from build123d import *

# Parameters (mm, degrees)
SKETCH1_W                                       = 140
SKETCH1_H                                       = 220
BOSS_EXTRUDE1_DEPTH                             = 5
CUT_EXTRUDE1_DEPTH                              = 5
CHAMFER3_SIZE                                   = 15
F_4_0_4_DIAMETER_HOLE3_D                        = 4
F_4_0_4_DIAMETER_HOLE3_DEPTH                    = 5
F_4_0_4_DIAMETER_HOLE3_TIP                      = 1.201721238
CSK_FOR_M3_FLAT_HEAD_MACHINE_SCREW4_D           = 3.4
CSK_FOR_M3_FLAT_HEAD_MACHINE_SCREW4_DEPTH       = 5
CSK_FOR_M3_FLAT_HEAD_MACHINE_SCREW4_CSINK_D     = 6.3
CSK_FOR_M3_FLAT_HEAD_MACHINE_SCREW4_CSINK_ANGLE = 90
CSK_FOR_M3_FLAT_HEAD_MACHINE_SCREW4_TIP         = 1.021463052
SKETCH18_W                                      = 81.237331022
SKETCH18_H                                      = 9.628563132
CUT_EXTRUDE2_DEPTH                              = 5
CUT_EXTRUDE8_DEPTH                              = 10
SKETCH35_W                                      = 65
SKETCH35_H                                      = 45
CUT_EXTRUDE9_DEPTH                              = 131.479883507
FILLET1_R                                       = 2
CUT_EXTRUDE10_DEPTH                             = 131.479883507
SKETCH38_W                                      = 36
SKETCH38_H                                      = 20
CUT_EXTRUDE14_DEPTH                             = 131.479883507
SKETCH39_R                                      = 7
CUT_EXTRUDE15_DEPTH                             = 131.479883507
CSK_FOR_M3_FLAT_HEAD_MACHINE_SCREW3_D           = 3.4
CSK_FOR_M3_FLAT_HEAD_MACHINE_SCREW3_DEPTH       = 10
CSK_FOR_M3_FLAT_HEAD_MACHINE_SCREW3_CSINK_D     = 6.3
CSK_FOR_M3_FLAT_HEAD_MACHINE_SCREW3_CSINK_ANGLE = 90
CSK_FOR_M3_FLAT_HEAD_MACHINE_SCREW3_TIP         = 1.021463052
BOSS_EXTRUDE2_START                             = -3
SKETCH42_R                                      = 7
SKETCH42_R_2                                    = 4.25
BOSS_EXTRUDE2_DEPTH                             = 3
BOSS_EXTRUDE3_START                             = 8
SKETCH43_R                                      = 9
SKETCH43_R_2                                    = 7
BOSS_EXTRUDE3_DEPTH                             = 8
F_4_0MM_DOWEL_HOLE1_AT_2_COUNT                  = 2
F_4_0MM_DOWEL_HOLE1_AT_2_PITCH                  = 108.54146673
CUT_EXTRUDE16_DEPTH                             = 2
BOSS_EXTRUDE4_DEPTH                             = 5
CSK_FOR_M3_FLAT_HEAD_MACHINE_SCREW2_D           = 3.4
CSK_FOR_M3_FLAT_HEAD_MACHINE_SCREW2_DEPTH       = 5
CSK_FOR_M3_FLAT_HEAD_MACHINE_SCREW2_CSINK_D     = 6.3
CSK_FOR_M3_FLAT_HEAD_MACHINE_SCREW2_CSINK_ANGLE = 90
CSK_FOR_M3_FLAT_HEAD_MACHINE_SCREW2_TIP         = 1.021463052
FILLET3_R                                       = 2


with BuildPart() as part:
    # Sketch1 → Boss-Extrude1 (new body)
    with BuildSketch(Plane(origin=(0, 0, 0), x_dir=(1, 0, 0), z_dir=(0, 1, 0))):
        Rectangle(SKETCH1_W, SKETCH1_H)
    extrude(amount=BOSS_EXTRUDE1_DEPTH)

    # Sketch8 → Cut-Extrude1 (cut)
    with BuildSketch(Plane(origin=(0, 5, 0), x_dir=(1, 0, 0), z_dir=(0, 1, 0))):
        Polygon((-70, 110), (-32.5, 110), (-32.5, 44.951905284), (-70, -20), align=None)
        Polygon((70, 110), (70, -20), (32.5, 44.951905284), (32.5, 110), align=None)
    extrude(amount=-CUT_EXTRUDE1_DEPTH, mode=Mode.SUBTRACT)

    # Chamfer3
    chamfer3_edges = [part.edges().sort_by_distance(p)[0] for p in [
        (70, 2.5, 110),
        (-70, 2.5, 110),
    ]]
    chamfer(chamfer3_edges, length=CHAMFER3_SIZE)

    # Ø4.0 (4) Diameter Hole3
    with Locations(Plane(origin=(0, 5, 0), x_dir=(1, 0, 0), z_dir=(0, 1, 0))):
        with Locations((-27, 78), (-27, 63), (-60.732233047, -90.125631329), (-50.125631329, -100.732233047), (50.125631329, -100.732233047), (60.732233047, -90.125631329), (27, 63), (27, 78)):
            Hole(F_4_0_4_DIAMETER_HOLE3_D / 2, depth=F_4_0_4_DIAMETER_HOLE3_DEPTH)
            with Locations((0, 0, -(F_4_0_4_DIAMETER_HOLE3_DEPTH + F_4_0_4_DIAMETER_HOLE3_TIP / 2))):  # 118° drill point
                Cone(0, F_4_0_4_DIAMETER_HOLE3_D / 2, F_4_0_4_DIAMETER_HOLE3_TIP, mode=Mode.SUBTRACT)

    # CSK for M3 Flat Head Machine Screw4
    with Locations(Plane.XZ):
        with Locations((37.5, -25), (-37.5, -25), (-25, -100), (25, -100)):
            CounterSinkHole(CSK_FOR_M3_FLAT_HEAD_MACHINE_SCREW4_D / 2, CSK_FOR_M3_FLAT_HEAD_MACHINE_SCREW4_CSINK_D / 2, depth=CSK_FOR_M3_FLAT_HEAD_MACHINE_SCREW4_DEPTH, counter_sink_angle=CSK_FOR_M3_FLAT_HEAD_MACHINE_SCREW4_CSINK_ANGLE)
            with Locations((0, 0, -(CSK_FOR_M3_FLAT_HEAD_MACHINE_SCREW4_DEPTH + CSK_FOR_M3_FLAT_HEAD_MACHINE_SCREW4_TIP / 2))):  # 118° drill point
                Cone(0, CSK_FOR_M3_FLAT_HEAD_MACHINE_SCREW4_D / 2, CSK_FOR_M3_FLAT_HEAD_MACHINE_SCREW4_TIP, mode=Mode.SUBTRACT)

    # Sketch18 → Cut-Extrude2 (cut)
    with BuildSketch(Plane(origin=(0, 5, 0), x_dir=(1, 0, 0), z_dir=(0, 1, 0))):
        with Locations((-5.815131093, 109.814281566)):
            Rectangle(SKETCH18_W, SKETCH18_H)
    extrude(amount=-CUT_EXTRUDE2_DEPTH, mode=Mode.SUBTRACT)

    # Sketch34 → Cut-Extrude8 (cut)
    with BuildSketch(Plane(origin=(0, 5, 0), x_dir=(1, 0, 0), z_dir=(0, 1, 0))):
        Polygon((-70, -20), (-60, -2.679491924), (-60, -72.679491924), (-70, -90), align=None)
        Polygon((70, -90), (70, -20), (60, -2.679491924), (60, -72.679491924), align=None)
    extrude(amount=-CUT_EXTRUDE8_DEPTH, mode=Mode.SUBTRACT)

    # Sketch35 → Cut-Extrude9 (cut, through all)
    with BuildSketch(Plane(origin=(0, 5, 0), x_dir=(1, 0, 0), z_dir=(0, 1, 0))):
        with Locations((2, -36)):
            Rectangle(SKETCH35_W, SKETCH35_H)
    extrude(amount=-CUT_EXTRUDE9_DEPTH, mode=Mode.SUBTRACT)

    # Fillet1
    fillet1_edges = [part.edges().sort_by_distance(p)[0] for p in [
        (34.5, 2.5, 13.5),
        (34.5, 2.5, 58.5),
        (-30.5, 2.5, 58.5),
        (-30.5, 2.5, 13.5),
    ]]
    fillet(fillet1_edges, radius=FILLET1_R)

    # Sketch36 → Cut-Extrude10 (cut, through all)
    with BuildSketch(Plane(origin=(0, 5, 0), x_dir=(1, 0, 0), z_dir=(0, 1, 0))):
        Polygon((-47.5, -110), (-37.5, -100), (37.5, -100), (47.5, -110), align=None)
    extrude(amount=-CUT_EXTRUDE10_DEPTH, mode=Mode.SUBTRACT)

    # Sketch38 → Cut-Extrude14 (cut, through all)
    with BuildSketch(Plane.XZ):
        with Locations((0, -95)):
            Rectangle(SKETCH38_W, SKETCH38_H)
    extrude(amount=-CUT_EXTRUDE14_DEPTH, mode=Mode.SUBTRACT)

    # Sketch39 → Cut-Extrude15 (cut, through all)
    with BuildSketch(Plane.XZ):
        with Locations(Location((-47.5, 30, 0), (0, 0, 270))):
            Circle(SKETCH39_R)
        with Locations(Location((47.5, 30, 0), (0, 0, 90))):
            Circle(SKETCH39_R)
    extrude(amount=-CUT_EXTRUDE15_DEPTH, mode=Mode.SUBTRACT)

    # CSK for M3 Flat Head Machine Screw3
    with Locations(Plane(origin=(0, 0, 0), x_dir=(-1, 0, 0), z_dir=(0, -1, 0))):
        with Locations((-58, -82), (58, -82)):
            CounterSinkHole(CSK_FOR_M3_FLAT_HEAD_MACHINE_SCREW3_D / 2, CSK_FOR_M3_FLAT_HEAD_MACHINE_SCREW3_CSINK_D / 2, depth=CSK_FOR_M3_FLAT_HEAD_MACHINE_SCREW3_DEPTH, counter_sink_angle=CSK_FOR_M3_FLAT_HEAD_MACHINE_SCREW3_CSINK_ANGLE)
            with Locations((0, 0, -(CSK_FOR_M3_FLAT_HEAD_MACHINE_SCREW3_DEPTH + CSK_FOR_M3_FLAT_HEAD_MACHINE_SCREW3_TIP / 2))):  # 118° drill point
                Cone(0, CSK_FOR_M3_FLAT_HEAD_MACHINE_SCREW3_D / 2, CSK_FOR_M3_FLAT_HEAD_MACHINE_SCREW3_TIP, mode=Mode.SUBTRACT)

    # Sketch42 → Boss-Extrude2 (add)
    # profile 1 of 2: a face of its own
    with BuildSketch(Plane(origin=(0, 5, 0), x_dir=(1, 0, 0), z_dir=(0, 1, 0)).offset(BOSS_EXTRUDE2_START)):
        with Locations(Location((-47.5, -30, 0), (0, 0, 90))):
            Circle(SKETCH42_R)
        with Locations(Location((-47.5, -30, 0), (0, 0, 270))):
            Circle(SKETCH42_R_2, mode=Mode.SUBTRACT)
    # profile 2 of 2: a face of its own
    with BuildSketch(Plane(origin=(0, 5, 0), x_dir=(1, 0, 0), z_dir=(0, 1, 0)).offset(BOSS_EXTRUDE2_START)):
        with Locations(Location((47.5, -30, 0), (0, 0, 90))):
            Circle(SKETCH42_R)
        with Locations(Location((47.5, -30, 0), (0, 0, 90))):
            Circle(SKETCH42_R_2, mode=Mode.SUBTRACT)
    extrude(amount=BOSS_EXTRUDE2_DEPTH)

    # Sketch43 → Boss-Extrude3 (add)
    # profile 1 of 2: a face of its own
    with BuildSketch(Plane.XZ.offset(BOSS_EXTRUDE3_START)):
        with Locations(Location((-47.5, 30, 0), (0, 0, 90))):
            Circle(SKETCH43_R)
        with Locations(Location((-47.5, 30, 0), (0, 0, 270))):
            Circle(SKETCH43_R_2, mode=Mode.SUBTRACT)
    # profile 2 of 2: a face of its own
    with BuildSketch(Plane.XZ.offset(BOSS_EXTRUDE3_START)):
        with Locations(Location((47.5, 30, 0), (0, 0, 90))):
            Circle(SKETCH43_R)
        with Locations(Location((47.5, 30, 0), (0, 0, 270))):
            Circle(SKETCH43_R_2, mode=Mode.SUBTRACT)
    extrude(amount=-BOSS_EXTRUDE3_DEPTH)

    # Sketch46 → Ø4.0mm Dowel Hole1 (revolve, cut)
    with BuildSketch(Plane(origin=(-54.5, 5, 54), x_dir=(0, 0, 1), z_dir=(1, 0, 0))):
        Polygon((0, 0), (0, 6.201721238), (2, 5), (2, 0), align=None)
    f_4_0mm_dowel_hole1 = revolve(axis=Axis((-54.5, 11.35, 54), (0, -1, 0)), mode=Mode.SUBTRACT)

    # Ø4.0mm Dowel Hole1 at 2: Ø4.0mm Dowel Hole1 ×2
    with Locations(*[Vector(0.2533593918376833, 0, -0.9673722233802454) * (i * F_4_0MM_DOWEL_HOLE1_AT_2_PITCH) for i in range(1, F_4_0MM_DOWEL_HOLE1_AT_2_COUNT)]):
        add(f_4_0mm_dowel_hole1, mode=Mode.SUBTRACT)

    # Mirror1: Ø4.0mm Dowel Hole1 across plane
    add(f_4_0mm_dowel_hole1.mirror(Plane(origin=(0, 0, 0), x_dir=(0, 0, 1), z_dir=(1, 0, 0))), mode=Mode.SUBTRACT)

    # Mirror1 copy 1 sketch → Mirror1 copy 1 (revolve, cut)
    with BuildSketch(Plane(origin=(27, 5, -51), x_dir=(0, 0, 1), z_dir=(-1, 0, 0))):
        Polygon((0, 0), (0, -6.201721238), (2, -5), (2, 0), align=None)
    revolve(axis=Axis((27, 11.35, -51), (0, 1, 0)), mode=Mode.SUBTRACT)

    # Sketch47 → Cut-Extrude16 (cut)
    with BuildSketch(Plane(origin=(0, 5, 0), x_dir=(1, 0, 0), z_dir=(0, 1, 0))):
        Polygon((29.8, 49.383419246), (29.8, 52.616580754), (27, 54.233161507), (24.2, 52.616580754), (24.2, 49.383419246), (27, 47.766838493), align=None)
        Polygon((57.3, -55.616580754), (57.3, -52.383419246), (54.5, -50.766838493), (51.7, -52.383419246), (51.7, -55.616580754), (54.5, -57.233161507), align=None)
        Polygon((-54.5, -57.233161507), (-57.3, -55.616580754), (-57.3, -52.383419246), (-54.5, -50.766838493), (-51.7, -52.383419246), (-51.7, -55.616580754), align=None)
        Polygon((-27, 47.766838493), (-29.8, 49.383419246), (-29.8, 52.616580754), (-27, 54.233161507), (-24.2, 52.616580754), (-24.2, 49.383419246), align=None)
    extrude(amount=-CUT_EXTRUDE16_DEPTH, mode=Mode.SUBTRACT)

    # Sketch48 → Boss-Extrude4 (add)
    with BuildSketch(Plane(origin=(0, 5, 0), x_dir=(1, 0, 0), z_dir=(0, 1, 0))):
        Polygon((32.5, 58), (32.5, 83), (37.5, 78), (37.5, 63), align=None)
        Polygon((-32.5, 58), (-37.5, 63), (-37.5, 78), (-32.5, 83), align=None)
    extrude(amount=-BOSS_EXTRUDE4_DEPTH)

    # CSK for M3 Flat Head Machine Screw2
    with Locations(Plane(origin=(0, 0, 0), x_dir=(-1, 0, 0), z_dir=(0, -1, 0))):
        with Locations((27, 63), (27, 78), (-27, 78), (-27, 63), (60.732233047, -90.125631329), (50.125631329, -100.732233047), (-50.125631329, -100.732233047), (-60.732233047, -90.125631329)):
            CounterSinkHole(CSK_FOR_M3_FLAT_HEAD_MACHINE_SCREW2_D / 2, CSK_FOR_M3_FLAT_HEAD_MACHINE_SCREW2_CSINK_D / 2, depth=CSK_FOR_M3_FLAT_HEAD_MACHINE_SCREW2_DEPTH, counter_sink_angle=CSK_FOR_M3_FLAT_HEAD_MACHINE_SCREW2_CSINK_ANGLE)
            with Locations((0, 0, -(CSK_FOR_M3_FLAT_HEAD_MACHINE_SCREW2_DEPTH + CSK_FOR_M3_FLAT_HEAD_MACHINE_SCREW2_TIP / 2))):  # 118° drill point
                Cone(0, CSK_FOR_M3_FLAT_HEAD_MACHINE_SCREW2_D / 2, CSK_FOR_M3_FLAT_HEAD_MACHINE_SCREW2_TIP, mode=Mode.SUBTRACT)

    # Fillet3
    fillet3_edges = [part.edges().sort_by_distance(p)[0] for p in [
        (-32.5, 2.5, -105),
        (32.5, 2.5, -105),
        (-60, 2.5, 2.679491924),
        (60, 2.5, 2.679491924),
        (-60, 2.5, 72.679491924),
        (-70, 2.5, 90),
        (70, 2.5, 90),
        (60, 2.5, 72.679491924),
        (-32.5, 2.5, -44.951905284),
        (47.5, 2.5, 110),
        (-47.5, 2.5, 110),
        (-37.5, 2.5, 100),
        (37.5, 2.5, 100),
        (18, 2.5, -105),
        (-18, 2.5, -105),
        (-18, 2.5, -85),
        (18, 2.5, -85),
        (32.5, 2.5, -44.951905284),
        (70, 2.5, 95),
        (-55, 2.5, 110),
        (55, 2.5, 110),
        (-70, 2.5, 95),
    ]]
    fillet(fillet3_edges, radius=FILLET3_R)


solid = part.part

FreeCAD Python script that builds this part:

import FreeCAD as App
import Part
import Sketcher
from FreeCAD import Vector
Q = App.Units.Quantity


def edges_at(feature, points):
    """Names of the edges that pass closest to the given points."""
    edges = feature.Shape.Edges
    near = lambda p: min(range(len(edges)), key=lambda i: edges[i].distToShape(Part.Vertex(*p))[0])
    return sorted({f"Edge{near(p) + 1}" for p in points})


def add_polygon(sketch, points):
    """Adds a closed chain of lines whose ends are joined by coincident constraints."""
    first, n = sketch.GeometryCount, len(points)
    for a, b in zip(points, points[1:] + points[:1]):
        sketch.addGeometry(Part.LineSegment(App.Vector(*a, 0), App.Vector(*b, 0)), False)
    for i in range(n):
        sketch.addConstraint(Sketcher.Constraint("Coincident", first + i, 2, first + (i + 1) % n, 1))

doc = App.newDocument("Part")
body = doc.addObject("PartDesign::Body", "Body")

sketch1 = body.newObject("Sketcher::SketchObject", "Sketch")
sketch1.AttachmentSupport = (doc.getObject("XZ_Plane"), [""])
sketch1.MapMode = "FlatFace"
add_polygon(sketch1, [(-70, -110), (-70, 110), (70, 110), (70, -110)])
sketch1.addConstraint([
    Sketcher.Constraint("Vertical", 0),
    Sketcher.Constraint("Horizontal", 1),
    Sketcher.Constraint("Vertical", 2),
    Sketcher.Constraint("Horizontal", 3),
    Sketcher.Constraint("Symmetric", 0, 2, 2, 2, -1, 1),
    Sketcher.Constraint("DistanceX", 1, 1, 1, 2, Q("140 mm")),
    Sketcher.Constraint("DistanceY", 0, 1, 0, 2, Q("220 mm")),
])
pad1 = body.newObject("PartDesign::Pad", "Pad")
pad1.Profile = sketch1
pad1.Length = 5
pad1.Reversed = True

sketch2 = body.newObject("Sketcher::SketchObject", "Sketch001")
sketch2.AttachmentSupport = (doc.getObject("XZ_Plane"), [""])
sketch2.MapMode = "FlatFace"
sketch2.AttachmentOffset = App.Placement(Vector(0, 0, -5), App.Rotation())
add_polygon(sketch2, [(-32, -110), (-70, -110), (-70, 20), (-32, -45)])
add_polygon(sketch2, [(70, 20), (70, -110), (32, -110), (32, -45)])
sketch2.addConstraint([
    Sketcher.Constraint("Horizontal", 0),
    Sketcher.Constraint("Vertical", 1),
    Sketcher.Constraint("Vertical", 3),
    Sketcher.Constraint("Vertical", 4),
    Sketcher.Constraint("Horizontal", 5),
    Sketcher.Constraint("Vertical", 6),
    Sketcher.Constraint("Symmetric", 0, 2, 4, 2, -2),
    Sketcher.Constraint("Symmetric", 2, 2, 6, 2, -2),
    Sketcher.Constraint("Horizontal", 1, 2, 7, 2),
    Sketcher.Constraint("DistanceY", 1, 1, 1, 2, Q("130 mm")),
    Sketcher.Constraint("Angle", 2, Q("-60 deg")),
    Sketcher.Constraint("Distance", 2, Q("75 mm")),
    Sketcher.Constraint("DistanceX", 0, 2, -1, 1, Q("70 mm")),
    Sketcher.Constraint("DistanceY", 0, 2, -1, 1, Q("110 mm")),
])
pocket1 = body.newObject("PartDesign::Pocket", "Pocket")
pocket1.Profile = sketch2
pocket1.Length = 5
pocket1.Reversed = True
doc.recompute()

chamfer = body.newObject("PartDesign::Chamfer", "Chamfer")
chamfer.Base = (pocket1, edges_at(pocket1, [(70, 2.5, 110), (-70, 2.5, 110)]))
chamfer.Size = 15

sketch3 = body.newObject("Sketcher::SketchObject", "Sketch002")
sketch3.AttachmentSupport = (doc.getObject("XZ_Plane"), [""])
sketch3.MapMode = "FlatFace"
sketch3.AttachmentOffset = App.Placement(Vector(0, 0, -5), App.Rotation())
sketch3.addGeometry([
    Part.Circle(Vector(-27, -78, 0), Vector(0, 0, 1), 2),
    Part.Circle(Vector(-27, -63, 0), Vector(0, 0, 1), 2),
    Part.Circle(Vector(-60.7, 90.1, 0), Vector(0, 0, 1), 2),
    Part.Circle(Vector(-50.1, 100.7, 0), Vector(0, 0, 1), 2),
    Part.Circle(Vector(50.1, 100.7, 0), Vector(0, 0, 1), 2),
    Part.Circle(Vector(60.7, 90.1, 0), Vector(0, 0, 1), 2),
    Part.Circle(Vector(27, -63, 0), Vector(0, 0, 1), 2),
    Part.Circle(Vector(27, -78, 0), Vector(0, 0, 1), 2),
], False)
sketch3.addConstraint([
    Sketcher.Constraint("Equal", 0, 1),
    Sketcher.Constraint("Equal", 1, 2),
    Sketcher.Constraint("Equal", 2, 3),
    Sketcher.Constraint("Equal", 3, 4),
    Sketcher.Constraint("Equal", 4, 5),
    Sketcher.Constraint("Equal", 5, 6),
    Sketcher.Constraint("Equal", 6, 7),
    Sketcher.Constraint("Symmetric", 3, 3, 4, 3, -2),
    Sketcher.Constraint("Symmetric", 2, 3, 5, 3, -2),
    Sketcher.Constraint("Symmetric", 1, 3, 6, 3, -2),
    Sketcher.Constraint("Symmetric", 0, 3, 7, 3, -2),
    Sketcher.Constraint("Vertical", 0, 3, 1, 3),
    Sketcher.Constraint("Diameter", 0, Q("4 mm")),
    Sketcher.Constraint("DistanceX", 0, 3, -1, 1, Q("27 mm")),
    Sketcher.Constraint("DistanceY", 0, 3, -1, 1, Q("78 mm")),
    Sketcher.Constraint("DistanceY", 1, 3, -1, 1, Q("63 mm")),
    Sketcher.Constraint("DistanceX", 2, 3, 3, 3, Q("10.606602 mm")),
    Sketcher.Constraint("DistanceY", 2, 3, 3, 3, Q("10.606602 mm")),
    Sketcher.Constraint("DistanceY", -1, 1, 2, 3, Q("90.125631 mm")),
    Sketcher.Constraint("DistanceX", 3, 3, -1, 1, Q("50.125631 mm")),
])
doc.recompute()
hole = body.newObject("PartDesign::Hole", "Hole")
hole.Profile = sketch3
hole.ThreadType = "None"
hole.Diameter = 4
hole.DepthType = "Dimension"
hole.Depth = 5
hole.DrillPoint = "Angled"
hole.DrillPointAngle = 118
hole.Reversed = True

sketch4 = body.newObject("Sketcher::SketchObject", "Sketch003")
sketch4.AttachmentSupport = (doc.getObject("XZ_Plane"), [""])
sketch4.MapMode = "FlatFace"
sketch4.addGeometry([
    Part.Circle(Vector(37.5, -25, 0), Vector(0, 0, 1), 1.7),
    Part.Circle(Vector(-37.5, -25, 0), Vector(0, 0, 1), 1.7),
    Part.Circle(Vector(-25, -100, 0), Vector(0, 0, 1), 1.7),
    Part.Circle(Vector(25, -100, 0), Vector(0, 0, 1), 1.7),
], False)
sketch4.addConstraint([
    Sketcher.Constraint("Equal", 0, 1),
    Sketcher.Constraint("Equal", 1, 2),
    Sketcher.Constraint("Equal", 2, 3),
    Sketcher.Constraint("Symmetric", 0, 3, 1, 3, -2),
    Sketcher.Constraint("Symmetric", 2, 3, 3, 3, -2),
    Sketcher.Constraint("Diameter", 0, Q("3.4 mm")),
    Sketcher.Constraint("DistanceY", 0, 3, -1, 1, Q("25 mm")),
    Sketcher.Constraint("DistanceX", 2, 3, -1, 1, Q("25 mm")),
    Sketcher.Constraint("DistanceY", 2, 3, -1, 1, Q("100 mm")),
    Sketcher.Constraint("DistanceX", 1, 3, 0, 3, Q("75 mm")),
])
doc.recompute()
hole2 = body.newObject("PartDesign::Hole", "Hole001")
hole2.Profile = sketch4
hole2.ThreadType = "None"
hole2.Diameter = 3.4
hole2.DepthType = "Dimension"
hole2.Depth = 5
hole2.DrillPoint = "Angled"
hole2.DrillPointAngle = 118
hole2.HoleCutType = "Countersink"
hole2.HoleCutDiameter = 6.3
hole2.HoleCutCountersinkAngle = 90

sketch5 = body.newObject("Sketcher::SketchObject", "Sketch004")
sketch5.AttachmentSupport = (doc.getObject("XZ_Plane"), [""])
sketch5.MapMode = "FlatFace"
sketch5.AttachmentOffset = App.Placement(Vector(0, 0, -5), App.Rotation())
add_polygon(sketch5, [(-46, -115), (-46, -105), (35, -105), (35, -115)])
sketch5.addConstraint([
    Sketcher.Constraint("Vertical", 0),
    Sketcher.Constraint("Horizontal", 1),
    Sketcher.Constraint("Vertical", 2),
    Sketcher.Constraint("Horizontal", 3),
    Sketcher.Constraint("DistanceY", 0, 2, -1, 1, Q("105 mm")),
    Sketcher.Constraint("DistanceX", 1, 1, 1, 2, Q("81.237331 mm")),
    Sketcher.Constraint("DistanceY", 0, 1, 0, 2, Q("9.628563 mm")),
    Sketcher.Constraint("DistanceX", 0, 2, -1, 1, Q("46.433797 mm")),
])
pocket2 = body.newObject("PartDesign::Pocket", "Pocket001")
pocket2.Profile = sketch5
pocket2.Length = 5
pocket2.Reversed = True

sketch6 = body.newObject("Sketcher::SketchObject", "Sketch005")
sketch6.AttachmentSupport = (doc.getObject("XZ_Plane"), [""])
sketch6.MapMode = "FlatFace"
sketch6.AttachmentOffset = App.Placement(Vector(0, 0, -5), App.Rotation())
add_polygon(sketch6, [(-60, 3), (-70, 20), (-70, 90), (-60, 73)])
add_polygon(sketch6, [(70, 90), (70, 20), (60, 3), (60, 73)])
sketch6.addConstraint([
    Sketcher.Constraint("Vertical", 1),
    Sketcher.Constraint("Vertical", 3),
    Sketcher.Constraint("Vertical", 4),
    Sketcher.Constraint("Vertical", 6),
    Sketcher.Constraint("Symmetric", 0, 2, 4, 2, -2),
    Sketcher.Constraint("Symmetric", 3, 2, 5, 2, -2),
    Sketcher.Constraint("Parallel", 0, 2),
    Sketcher.Constraint("Parallel", 5, 7),
    Sketcher.Constraint("Horizontal", 2, 2, 6, 2),
    Sketcher.Constraint("DistanceY", 1, 1, 1, 2, Q("70 mm")),
    Sketcher.Constraint("Angle", 0, Q("120 deg")),
    Sketcher.Constraint("Distance", 0, Q("20 mm")),
    Sketcher.Constraint("DistanceX", 0, 2, -1, 1, Q("70 mm")),
    Sketcher.Constraint("DistanceY", -1, 1, 0, 2, Q("20 mm")),
])
pocket3 = body.newObject("PartDesign::Pocket", "Pocket002")
pocket3.Profile = sketch6
pocket3.Length = 10
pocket3.Reversed = True

sketch7 = body.newObject("Sketcher::SketchObject", "Sketch006")
sketch7.AttachmentSupport = (doc.getObject("XZ_Plane"), [""])
sketch7.MapMode = "FlatFace"
sketch7.AttachmentOffset = App.Placement(Vector(0, 0, -5), App.Rotation())
add_polygon(sketch7, [(-30, 14), (-30, 58), (34, 58), (34, 14)])
sketch7.addConstraint([
    Sketcher.Constraint("Vertical", 0),
    Sketcher.Constraint("Horizontal", 1),
    Sketcher.Constraint("Vertical", 2),
    Sketcher.Constraint("Horizontal", 3),
    Sketcher.Constraint("DistanceX", 1, 1, 1, 2, Q("65 mm")),
    Sketcher.Constraint("DistanceY", 0, 1, 0, 2, Q("45 mm")),
    Sketcher.Constraint("DistanceX", 0, 2, -1, 1, Q("30.5 mm")),
    Sketcher.Constraint("DistanceY", -1, 1, 0, 2, Q("58.5 mm")),
])
pocket4 = body.newObject("PartDesign::Pocket", "Pocket003")
pocket4.Profile = sketch7
pocket4.Type = "ThroughAll"
pocket4.Reversed = True
doc.recompute()

fillet = body.newObject("PartDesign::Fillet", "Fillet")
fillet.Base = (pocket4, edges_at(pocket4, [
    (34.5, 2.5, 13.5),
    (34.5, 2.5, 58.5),
    (-30.5, 2.5, 58.5),
    (-30.5, 2.5, 13.5),
]))
fillet.Radius = 2

sketch8 = body.newObject("Sketcher::SketchObject", "Sketch007")
sketch8.AttachmentSupport = (doc.getObject("XZ_Plane"), [""])
sketch8.MapMode = "FlatFace"
sketch8.AttachmentOffset = App.Placement(Vector(0, 0, -5), App.Rotation())
add_polygon(sketch8, [(-38, 100), (-48, 110), (48, 110), (38, 100)])
sketch8.addConstraint([
    Sketcher.Constraint("Horizontal", 1),
    Sketcher.Constraint("Horizontal", 3),
    Sketcher.Constraint("Perpendicular", 0, 2),
    Sketcher.Constraint("Equal", 0, 2),
    Sketcher.Constraint("DistanceX", 1, 1, 1, 2, Q("95 mm")),
    Sketcher.Constraint("DistanceX", 3, 2, 3, 1, Q("75 mm")),
    Sketcher.Constraint("DistanceY", -1, 1, 0, 2, Q("110 mm")),
    Sketcher.Constraint("DistanceX", 0, 2, -1, 1, Q("47.5 mm")),
])
pocket5 = body.newObject("PartDesign::Pocket", "Pocket004")
pocket5.Profile = sketch8
pocket5.Type = "ThroughAll"
pocket5.Reversed = True

sketch9 = body.newObject("Sketcher::SketchObject", "Sketch008")
sketch9.AttachmentSupport = (doc.getObject("XZ_Plane"), [""])
sketch9.MapMode = "FlatFace"
add_polygon(sketch9, [(-18, -85), (-18, -105), (18, -105), (18, -85)])
sketch9.addConstraint([
    Sketcher.Constraint("Vertical", 0),
    Sketcher.Constraint("Horizontal", 1),
    Sketcher.Constraint("Vertical", 2),
    Sketcher.Constraint("Horizontal", 3),
    Sketcher.Constraint("DistanceX", 1, 1, 1, 2, Q("36 mm")),
    Sketcher.Constraint("DistanceY", 0, 2, 0, 1, Q("20 mm")),
    Sketcher.Constraint("DistanceX", 0, 2, -1, 1, Q("18 mm")),
    Sketcher.Constraint("DistanceY", 0, 2, -1, 1, Q("105 mm")),
])
pocket6 = body.newObject("PartDesign::Pocket", "Pocket005")
pocket6.Profile = sketch9
pocket6.Type = "ThroughAll"

sketch10 = body.newObject("Sketcher::SketchObject", "Sketch009")
sketch10.AttachmentSupport = (doc.getObject("XZ_Plane"), [""])
sketch10.MapMode = "FlatFace"
sketch10.addGeometry([
    Part.Circle(Vector(-48, 30, 0), Vector(0, 0, 1), 7),
    Part.Circle(Vector(48, 30, 0), Vector(0, 0, 1), 7),
], False)
sketch10.addConstraint([
    Sketcher.Constraint("Equal", 0, 1),
    Sketcher.Constraint("Symmetric", 0, 3, 1, 3, -2),
    Sketcher.Constraint("Diameter", 0, Q("14 mm")),
    Sketcher.Constraint("DistanceY", -1, 1, 0, 3, Q("30 mm")),
    Sketcher.Constraint("DistanceX", 0, 3, 1, 3, Q("95 mm")),
])
pocket7 = body.newObject("PartDesign::Pocket", "Pocket006")
pocket7.Profile = sketch10
pocket7.Type = "ThroughAll"

sketch11 = body.newObject("Sketcher::SketchObject", "Sketch010")
sketch11.AttachmentSupport = (doc.getObject("XZ_Plane"), [""])
sketch11.MapMode = "FlatFace"
sketch11.addGeometry([
    Part.Circle(Vector(58, 82, 0), Vector(0, 0, 1), 1.7),
    Part.Circle(Vector(-58, 82, 0), Vector(0, 0, 1), 1.7),
], False)
sketch11.addConstraint([
    Sketcher.Constraint("Equal", 0, 1),
    Sketcher.Constraint("Symmetric", 0, 3, 1, 3, -2),
    Sketcher.Constraint("Diameter", 0, Q("3.4 mm")),
    Sketcher.Constraint("DistanceX", -1, 1, 0, 3, Q("58 mm")),
    Sketcher.Constraint("DistanceY", -1, 1, 0, 3, Q("82 mm")),
])
doc.recompute()
hole3 = body.newObject("PartDesign::Hole", "Hole002")
hole3.Profile = sketch11
hole3.ThreadType = "None"
hole3.Diameter = 3.4
hole3.DepthType = "Dimension"
hole3.Depth = 10
hole3.DrillPoint = "Angled"
hole3.DrillPointAngle = 118
hole3.HoleCutType = "Countersink"
hole3.HoleCutDiameter = 6.3
hole3.HoleCutCountersinkAngle = 90

sketch12 = body.newObject("Sketcher::SketchObject", "Sketch011")
sketch12.AttachmentSupport = (doc.getObject("XZ_Plane"), [""])
sketch12.MapMode = "FlatFace"
sketch12.AttachmentOffset = App.Placement(Vector(0, 0, -2), App.Rotation())
sketch12.addGeometry([
    Part.Circle(Vector(-47.5, 30, 0), Vector(0, 0, 1), 7),
    Part.Circle(Vector(-47.5, 30, 0), Vector(0, 0, 1), 4.2),
    Part.Circle(Vector(47.5, 30, 0), Vector(0, 0, 1), 7),
    Part.Circle(Vector(47.5, 30, 0), Vector(0, 0, 1), 4.2),
], False)
sketch12.addConstraint([
    Sketcher.Constraint("Coincident", 1, 3, 0, 3),
    Sketcher.Constraint("Coincident", 3, 3, 2, 3),
    Sketcher.Constraint("Equal", 0, 2),
    Sketcher.Constraint("Equal", 1, 3),
    Sketcher.Constraint("Symmetric", 0, 3, 2, 3, -2),
    Sketcher.Constraint("Diameter", 0, Q("14 mm")),
    Sketcher.Constraint("Diameter", 1, Q("8.5 mm")),
    Sketcher.Constraint("DistanceY", -1, 1, 0, 3, Q("30 mm")),
    Sketcher.Constraint("DistanceX", 0, 3, 2, 3, Q("95 mm")),
])
pad2 = body.newObject("PartDesign::Pad", "Pad001")
pad2.Profile = sketch12
pad2.Length = 3
pad2.Reversed = True

sketch13 = body.newObject("Sketcher::SketchObject", "Sketch012")
sketch13.AttachmentSupport = (doc.getObject("XZ_Plane"), [""])
sketch13.MapMode = "FlatFace"
sketch13.AttachmentOffset = App.Placement(Vector(0, 0, 8), App.Rotation())
sketch13.addGeometry([
    Part.Circle(Vector(-48, 30, 0), Vector(0, 0, 1), 9),
    Part.Circle(Vector(-48, 30, 0), Vector(0, 0, 1), 7),
    Part.Circle(Vector(48, 30, 0), Vector(0, 0, 1), 9),
    Part.Circle(Vector(48, 30, 0), Vector(0, 0, 1), 7),
], False)
sketch13.addConstraint([
    Sketcher.Constraint("Coincident", 1, 3, 0, 3),
    Sketcher.Constraint("Coincident", 3, 3, 2, 3),
    Sketcher.Constraint("Equal", 0, 2),
    Sketcher.Constraint("Equal", 1, 3),
    Sketcher.Constraint("Symmetric", 0, 3, 2, 3, -2),
    Sketcher.Constraint("Diameter", 0, Q("18 mm")),
    Sketcher.Constraint("Diameter", 1, Q("14 mm")),
    Sketcher.Constraint("DistanceY", -1, 1, 0, 3, Q("30 mm")),
    Sketcher.Constraint("DistanceX", 0, 3, 2, 3, Q("95 mm")),
])
pad3 = body.newObject("PartDesign::Pad", "Pad002")
pad3.Profile = sketch13
pad3.Length = 8
pad3.Reversed = True

sketch14 = body.newObject("Sketcher::SketchObject", "Sketch013")
sketch14.AttachmentSupport = (doc.getObject("YZ_Plane"), [""])
sketch14.MapMode = "FlatFace"
sketch14.AttachmentOffset = App.Placement(Vector(0, 0, -54.5), App.Rotation())
add_polygon(sketch14, [(-1.2, 54), (5, 54), (5, 56), (0, 56)])
sketch14.addGeometry(Part.LineSegment(Vector(5, 54, 0), Vector(-1.2, 54, 0)), True)
sketch14.addConstraint([
    Sketcher.Constraint("Horizontal", 0),
    Sketcher.Constraint("Vertical", 1),
    Sketcher.Constraint("Horizontal", 2),
    Sketcher.Constraint("Horizontal", 4),
    Sketcher.Constraint("Coincident", 4, 1, 0, 2),
    Sketcher.Constraint("PointOnObject", 2, 2, -2),
    Sketcher.Constraint("Equal", 0, 4),
    Sketcher.Constraint("DistanceX", 2, 2, 2, 1, Q("5 mm")),
    Sketcher.Constraint("DistanceY", 1, 1, 1, 2, Q("2 mm")),
    Sketcher.Constraint("Angle", 3, Q("-121 deg")),
    Sketcher.Constraint("DistanceY", -1, 1, 0, 2, Q("54 mm")),
])
groove = body.newObject("PartDesign::Groove", "Groove")
groove.Profile = sketch14
groove.ReferenceAxis = (sketch14, ["Axis0"])
groove.Angle = 360
doc.recompute()

datumline = body.newObject("PartDesign::Line", "DatumLine")
datumline.Placement = App.Placement(Vector(0, 0, 0), App.Rotation(Vector(0, 0, 1), Vector(0.253359392, 0, -0.967372223)))
linearpattern = body.newObject("PartDesign::LinearPattern", "LinearPattern")
linearpattern.Originals = [groove]
linearpattern.Direction = (datumline, [""])
linearpattern.Mode = "offset"
linearpattern.Offset = 108.541467
linearpattern.Occurrences = 2
body.Tip = linearpattern
doc.recompute()

mirrored = body.newObject("PartDesign::Mirrored", "Mirrored")
mirrored.Originals = [groove]
mirrored.MirrorPlane = (doc.getObject("YZ_Plane"), [""])
body.Tip = mirrored

sketch15 = body.newObject("Sketcher::SketchObject", "Sketch014")
sketch15.AttachmentSupport = (doc.getObject("YZ_Plane"), [""])
sketch15.MapMode = "FlatFace"
sketch15.AttachmentOffset = App.Placement(Vector(0, 0, 27), App.Rotation())
add_polygon(sketch15, [(5, -51), (-1.2, -51), (0, -49), (5, -49)])
sketch15.addGeometry(Part.LineSegment(Vector(-1.2, -51, 0), Vector(5, -51, 0)), True)
sketch15.addConstraint([
    Sketcher.Constraint("Horizontal", 0),
    Sketcher.Constraint("Horizontal", 2),
    Sketcher.Constraint("Vertical", 3),
    Sketcher.Constraint("Horizontal", 4),
    Sketcher.Constraint("Coincident", 4, 1, 0, 2),
    Sketcher.Constraint("PointOnObject", 1, 2, -2),
    Sketcher.Constraint("Vertical", 2, 2, 4, 2),
    Sketcher.Constraint("DistanceX", 2, 1, 2, 2, Q("5 mm")),
    Sketcher.Constraint("DistanceY", 3, 2, 3, 1, Q("2 mm")),
    Sketcher.Constraint("Angle", 1, Q("59 deg")),
    Sketcher.Constraint("DistanceY", 0, 2, -1, 1, Q("51 mm")),
])
groove2 = body.newObject("PartDesign::Groove", "Groove001")
groove2.Profile = sketch15
groove2.ReferenceAxis = (sketch15, ["Axis0"])
groove2.Angle = 360

sketch16 = body.newObject("Sketcher::SketchObject", "Sketch015")
sketch16.AttachmentSupport = (doc.getObject("XZ_Plane"), [""])
sketch16.MapMode = "FlatFace"
sketch16.AttachmentOffset = App.Placement(Vector(0, 0, -5), App.Rotation())
add_polygon(sketch16, [(29.8, -49.4), (29.8, -52.6), (27, -54.2), (24.2, -52.6), (24.2, -49.4), (27, -47.8)])
add_polygon(sketch16, [(57.3, 55.6), (57.3, 52.4), (54.5, 50.8), (51.7, 52.4), (51.7, 55.6), (54.5, 57.2)])
add_polygon(sketch16, [(-57.3, 55.6), (-54.5, 57.2), (-51.7, 55.6), (-51.7, 52.4), (-54.5, 50.8), (-57.3, 52.4)])
add_polygon(sketch16, [(-29.8, -49.4), (-27, -47.8), (-24.2, -49.4), (-24.2, -52.6), (-27, -54.2), (-29.8, -52.6)])
sketch16.addConstraint([
    Sketcher.Constraint("Vertical", 0),
    Sketcher.Constraint("Vertical", 3),
    Sketcher.Constraint("Vertical", 6),
    Sketcher.Constraint("Vertical", 9),
    Sketcher.Constraint("Vertical", 14),
    Sketcher.Constraint("Vertical", 17),
    Sketcher.Constraint("Vertical", 20),
    Sketcher.Constraint("Vertical", 23),
    Sketcher.Constraint("Symmetric", 10, 2, 12, 2, -2),
    Sketcher.Constraint("Symmetric", 9, 2, 13, 2, -2),
    Sketcher.Constraint("Symmetric", 7, 2, 15, 2, -2),
    Sketcher.Constraint("Symmetric", 6, 2, 16, 2, -2),
    Sketcher.Constraint("Symmetric", 4, 2, 18, 2, -2),
    Sketcher.Constraint("Symmetric", 3, 2, 19, 2, -2),
    Sketcher.Constraint("Symmetric", 1, 2, 21, 2, -2),
    Sketcher.Constraint("Symmetric", 0, 2, 22, 2, -2),
    Sketcher.Constraint("Parallel", 1, 4),
    Sketcher.Constraint("Parallel", 2, 5),
    Sketcher.Constraint("Parallel", 4, 7),
    Sketcher.Constraint("Parallel", 5, 8),
    Sketcher.Constraint("Parallel", 7, 10),
    Sketcher.Constraint("Parallel", 8, 11),
    Sketcher.Constraint("Parallel", 10, 12),
    Sketcher.Constraint("Parallel", 11, 13),
    Sketcher.Constraint("Parallel", 12, 15),
    Sketcher.Constraint("Parallel", 15, 18),
    Sketcher.Constraint("Parallel", 18, 21),
    Sketcher.Constraint("Horizontal", 0, 2, 2, 2),
    Sketcher.Constraint("Horizontal", 3, 2, 5, 2),
    Sketcher.Constraint("Horizontal", 6, 2, 8, 2),
    Sketcher.Constraint("Horizontal", 9, 2, 11, 2),
    Sketcher.Constraint("Equal", 3, 6),
    Sketcher.Constraint("Equal", 5, 7),
    Sketcher.Constraint("Angle", 1, Q("-150 deg")),
    Sketcher.Constraint("DistanceX", -1, 1, 1, 2, Q("27 mm")),
    Sketcher.Constraint("DistanceY", 0, 2, 6, 2, Q("105 mm")),
    Sketcher.Constraint("DistanceX", 12, 2, 10, 2, Q("109 mm")),
    Sketcher.Constraint("DistanceX", -1, 1, 0, 2, Q("29.8 mm")),
    Sketcher.Constraint("DistanceY", 0, 2, 0, 1, Q("3.233162 mm")),
    Sketcher.Constraint("DistanceY", 0, 2, -1, 1, Q("52.616581 mm")),
])
pocket8 = body.newObject("PartDesign::Pocket", "Pocket007")
pocket8.Profile = sketch16
pocket8.Length = 2
pocket8.Reversed = True

sketch17 = body.newObject("Sketcher::SketchObject", "Sketch016")
sketch17.AttachmentSupport = (doc.getObject("XZ_Plane"), [""])
sketch17.MapMode = "FlatFace"
sketch17.AttachmentOffset = App.Placement(Vector(0, 0, -5), App.Rotation())
add_polygon(sketch17, [(32, -83), (32, -58), (38, -63), (38, -78)])
add_polygon(sketch17, [(-38, -63), (-32, -58), (-32, -83), (-38, -78)])
sketch17.addConstraint([
    Sketcher.Constraint("Vertical", 0),
    Sketcher.Constraint("Vertical", 2),
    Sketcher.Constraint("Vertical", 5),
    Sketcher.Constraint("Vertical", 7),
    Sketcher.Constraint("Symmetric", 0, 2, 4, 2, -2),
    Sketcher.Constraint("Symmetric", 2, 2, 6, 2, -2),
    Sketcher.Constraint("Perpendicular", 1, 3),
    Sketcher.Constraint("Parallel", 3, 4),
    Sketcher.Constraint("Perpendicular", 4, 6),
    Sketcher.Constraint("Horizontal", 3, 2, 5, 2),
    Sketcher.Constraint("DistanceY", 0, 1, 0, 2, Q("25 mm")),
    Sketcher.Constraint("DistanceY", 2, 2, 2, 1, Q("15 mm")),
    Sketcher.Constraint("DistanceY", 0, 2, -1, 1, Q("58 mm")),
    Sketcher.Constraint("DistanceX", 4, 2, 0, 2, Q("65 mm")),
])
pad4 = body.newObject("PartDesign::Pad", "Pad003")
pad4.Profile = sketch17
pad4.Length = 5

sketch18 = body.newObject("Sketcher::SketchObject", "Sketch017")
sketch18.AttachmentSupport = (doc.getObject("XZ_Plane"), [""])
sketch18.MapMode = "FlatFace"
sketch18.addGeometry([
    Part.Circle(Vector(-27, -63, 0), Vector(0, 0, 1), 1.7),
    Part.Circle(Vector(-27, -78, 0), Vector(0, 0, 1), 1.7),
    Part.Circle(Vector(27, -78, 0), Vector(0, 0, 1), 1.7),
    Part.Circle(Vector(27, -63, 0), Vector(0, 0, 1), 1.7),
    Part.Circle(Vector(-60.7, 90.1, 0), Vector(0, 0, 1), 1.7),
    Part.Circle(Vector(-50.1, 100.7, 0), Vector(0, 0, 1), 1.7),
    Part.Circle(Vector(50.1, 100.7, 0), Vector(0, 0, 1), 1.7),
    Part.Circle(Vector(60.7, 90.1, 0), Vector(0, 0, 1), 1.7),
], False)
sketch18.addConstraint([
    Sketcher.Constraint("Equal", 0, 1),
    Sketcher.Constraint("Equal", 1, 2),
    Sketcher.Constraint("Equal", 2, 3),
    Sketcher.Constraint("Equal", 3, 4),
    Sketcher.Constraint("Equal", 4, 5),
    Sketcher.Constraint("Equal", 5, 6),
    Sketcher.Constraint("Equal", 6, 7),
    Sketcher.Constraint("Symmetric", 1, 3, 2, 3, -2),
    Sketcher.Constraint("Symmetric", 0, 3, 3, 3, -2),
    Sketcher.Constraint("Symmetric", 5, 3, 6, 3, -2),
    Sketcher.Constraint("Symmetric", 4, 3, 7, 3, -2),
    Sketcher.Constraint("Vertical", 0, 3, 1, 3),
    Sketcher.Constraint("Diameter", 0, Q("3.4 mm")),
    Sketcher.Constraint("DistanceX", 0, 3, -1, 1, Q("27 mm")),
    Sketcher.Constraint("DistanceY", 0, 3, -1, 1, Q("63 mm")),
    Sketcher.Constraint("DistanceY", 1, 3, -1, 1, Q("78 mm")),
    Sketcher.Constraint("DistanceX", 4, 3, 5, 3, Q("10.606602 mm")),
    Sketcher.Constraint("DistanceY", 4, 3, 5, 3, Q("10.606602 mm")),
    Sketcher.Constraint("DistanceY", -1, 1, 4, 3, Q("90.125631 mm")),
    Sketcher.Constraint("DistanceX", 5, 3, -1, 1, Q("50.125631 mm")),
])
doc.recompute()
hole4 = body.newObject("PartDesign::Hole", "Hole003")
hole4.Profile = sketch18
hole4.ThreadType = "None"
hole4.Diameter = 3.4
hole4.DepthType = "Dimension"
hole4.Depth = 5
hole4.DrillPoint = "Angled"
hole4.DrillPointAngle = 118
hole4.HoleCutType = "Countersink"
hole4.HoleCutDiameter = 6.3
hole4.HoleCutCountersinkAngle = 90
doc.recompute()

fillet2 = body.newObject("PartDesign::Fillet", "Fillet001")
fillet2.Base = (hole4, edges_at(hole4, [
    (-32.5, 2.5, -105),
    (32.5, 2.5, -105),
    (-60, 2.5, 2.679),
    (60, 2.5, 2.679),
    (-60, 2.5, 72.679),
    (-70, 2.5, 90),
    (70, 2.5, 90),
    (60, 2.5, 72.679),
    (-32.5, 2.5, -44.952),
    (47.5, 2.5, 110),
    (-47.5, 2.5, 110),
    (-37.5, 2.5, 100),
    (37.5, 2.5, 100),
    (18, 2.5, -105),
    (-18, 2.5, -105),
    (-18, 2.5, -85),
    (18, 2.5, -85),
    (32.5, 2.5, -44.952),
    (70, 2.5, 95),
    (-55, 2.5, 110),
    (55, 2.5, 110),
    (-70, 2.5, 95),
]))
fillet2.Radius = 2

doc.recompute()
